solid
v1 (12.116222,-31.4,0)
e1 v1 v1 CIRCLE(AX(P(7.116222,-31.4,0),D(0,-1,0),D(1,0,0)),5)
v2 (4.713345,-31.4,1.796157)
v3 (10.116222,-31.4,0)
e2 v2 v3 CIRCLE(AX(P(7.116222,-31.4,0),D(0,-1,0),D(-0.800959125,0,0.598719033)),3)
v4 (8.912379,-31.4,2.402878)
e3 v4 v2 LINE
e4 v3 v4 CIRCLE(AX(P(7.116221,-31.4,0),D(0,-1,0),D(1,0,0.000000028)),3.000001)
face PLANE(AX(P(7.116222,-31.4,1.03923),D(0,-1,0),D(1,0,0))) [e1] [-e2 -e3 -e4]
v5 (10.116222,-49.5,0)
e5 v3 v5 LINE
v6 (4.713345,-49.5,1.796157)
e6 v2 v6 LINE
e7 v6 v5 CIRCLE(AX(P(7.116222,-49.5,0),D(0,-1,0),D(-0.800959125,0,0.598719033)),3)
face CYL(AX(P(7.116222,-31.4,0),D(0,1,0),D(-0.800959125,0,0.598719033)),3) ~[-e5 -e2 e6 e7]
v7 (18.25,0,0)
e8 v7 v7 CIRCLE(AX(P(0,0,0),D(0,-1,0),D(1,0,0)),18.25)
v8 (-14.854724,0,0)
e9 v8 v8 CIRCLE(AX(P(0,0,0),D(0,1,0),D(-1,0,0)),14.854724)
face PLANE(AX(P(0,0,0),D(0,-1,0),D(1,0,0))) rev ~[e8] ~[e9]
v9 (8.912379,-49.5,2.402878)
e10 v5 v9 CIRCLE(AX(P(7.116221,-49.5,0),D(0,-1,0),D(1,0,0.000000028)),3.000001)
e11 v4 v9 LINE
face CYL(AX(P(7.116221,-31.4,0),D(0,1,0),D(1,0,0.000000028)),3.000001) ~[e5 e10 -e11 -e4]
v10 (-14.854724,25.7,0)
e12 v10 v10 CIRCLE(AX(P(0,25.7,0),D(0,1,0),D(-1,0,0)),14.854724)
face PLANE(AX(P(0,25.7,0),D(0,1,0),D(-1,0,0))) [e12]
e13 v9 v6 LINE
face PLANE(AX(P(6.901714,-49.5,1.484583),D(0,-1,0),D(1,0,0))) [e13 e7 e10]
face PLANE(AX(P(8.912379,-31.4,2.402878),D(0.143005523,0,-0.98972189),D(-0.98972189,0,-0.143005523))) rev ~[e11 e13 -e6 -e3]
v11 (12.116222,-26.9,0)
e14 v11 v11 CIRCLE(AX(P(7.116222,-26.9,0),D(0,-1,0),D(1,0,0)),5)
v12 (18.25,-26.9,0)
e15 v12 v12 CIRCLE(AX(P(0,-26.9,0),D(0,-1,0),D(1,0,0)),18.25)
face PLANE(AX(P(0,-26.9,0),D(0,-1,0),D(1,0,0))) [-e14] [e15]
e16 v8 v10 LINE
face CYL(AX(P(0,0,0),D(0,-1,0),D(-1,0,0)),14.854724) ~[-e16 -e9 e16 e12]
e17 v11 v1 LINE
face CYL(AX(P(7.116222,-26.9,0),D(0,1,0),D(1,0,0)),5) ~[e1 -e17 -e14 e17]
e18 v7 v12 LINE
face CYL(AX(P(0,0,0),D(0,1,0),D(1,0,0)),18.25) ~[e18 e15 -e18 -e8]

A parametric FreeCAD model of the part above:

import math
import FreeCAD as App
import Part
import Sketcher
Q = App.Units.Quantity

doc = App.newDocument("Part")
params = doc.addObject("Spreadsheet::Sheet", "Params")
for row, (alias, value) in enumerate([
    ("sketch1_diameter", "36.5 mm"),
    ("pad1_length", "26.9 mm"),
    ("sketch2_diameter", "10 mm"),
    ("pad2_length", "4.5 mm"),
    ("sketch3_radius", "3 mm"),
    ("pad3_length", "18.1 mm"),
    ("pad4_length", "25.7 mm"),
], start=1):
    params.set(f"A{row}", alias)
    params.set(f"B{row}", "=" + value)
    params.setAlias(f"B{row}", alias)

body = doc.addObject("PartDesign::Body", "Body")

# Sketch on XZ plane
sketch1 = body.newObject("Sketcher::SketchObject", "Sketch")
sketch1.AttachmentSupport = (doc.getObject("XZ_Plane"), [""])
sketch1.MapMode = "FlatFace"
sketch1.addGeometry(Part.Circle(App.Vector(0, 0, 0), App.Vector(0, 0, 1), 18), False)
sketch1.addConstraint([
    Sketcher.Constraint("Coincident", 0, 3, -1, 1),
    Sketcher.Constraint("Diameter", 0, Q("36.5 mm")),
])
sketch1.setExpression("Constraints[1]", "Params.sketch1_diameter")
pad1 = body.newObject("PartDesign::Pad", "Pad")
pad1.Profile = sketch1
pad1.setExpression("Length", "Params.pad1_length")

# Sketch on XZ plane
sketch2 = body.newObject("Sketcher::SketchObject", "Sketch001")
sketch2.AttachmentSupport = (doc.getObject("XZ_Plane"), [""])
sketch2.MapMode = "FlatFace"
sketch2.AttachmentOffset = App.Placement(App.Vector(0, 0, 26.9), App.Rotation())
sketch2.addGeometry(Part.Circle(App.Vector(7, 0, 0), App.Vector(0, 0, 1), 5), False)
sketch2.addConstraint([
    Sketcher.Constraint("PointOnObject", 0, 3, -1),
    Sketcher.Constraint("Diameter", 0, Q("10 mm")),
    Sketcher.Constraint("DistanceX", -1, 1, 0, 3, Q("7.116222 mm")),
])
sketch2.setExpression("Constraints[1]", "Params.sketch2_diameter")
pad2 = body.newObject("PartDesign::Pad", "Pad001")
pad2.Profile = sketch2
pad2.setExpression("Length", "Params.pad2_length")

# Sketch on XZ plane
sketch3 = body.newObject("Sketcher::SketchObject", "Sketch002")
sketch3.AttachmentSupport = (doc.getObject("XZ_Plane"), [""])
sketch3.MapMode = "FlatFace"
sketch3.AttachmentOffset = App.Placement(App.Vector(0, 0, 31.4), App.Rotation())
sketch3.addGeometry([
    Part.LineSegment(App.Vector(8.9, 2.4, 0), App.Vector(4.7, 1.8, 0)),
    Part.ArcOfCircle(Part.Circle(App.Vector(7.1, 0, 0), App.Vector(0, 0, 1), 3), math.radians(143), math.radians(360)),
    Part.ArcOfCircle(Part.Circle(App.Vector(7.1, 0, 0), App.Vector(0, 0, 1), 3), math.radians(0), math.radians(53)),
], False)
sketch3.addConstraint([
    Sketcher.Constraint("Coincident", 0, 2, 1, 1),
    Sketcher.Constraint("Tangent", 1, 2, 2, 1),
    Sketcher.Constraint("Coincident", 2, 2, 0, 1),
    Sketcher.Constraint("Equal", 1, 2),
    Sketcher.Constraint("PointOnObject", 1, 3, -1),
    Sketcher.Constraint("PointOnObject", 1, 2, -1),
    Sketcher.Constraint("Radius", 1, Q("3 mm")),
    Sketcher.Constraint("Distance", 0, Q("4.24264 mm")),
    Sketcher.Constraint("DistanceX", -1, 1, 2, 3, Q("7.116221 mm")),
    Sketcher.Constraint("DistanceX", -1, 1, 2, 2, Q("8.912379 mm")),
])
sketch3.setExpression("Constraints[6]", "Params.sketch3_radius")
pad3 = body.newObject("PartDesign::Pad", "Pad002")
pad3.Profile = sketch3
pad3.setExpression("Length", "Params.pad3_length")

# Sketch on XZ plane
sketch4 = body.newObject("Sketcher::SketchObject", "Sketch003")
sketch4.AttachmentSupport = (doc.getObject("XZ_Plane"), [""])
sketch4.MapMode = "FlatFace"
sketch4.addGeometry(Part.Circle(App.Vector(0, 0, 0), App.Vector(0, 0, 1), 15), False)
sketch4.addConstraint([
    Sketcher.Constraint("Coincident", 0, 3, -1, 1),
    Sketcher.Constraint("Diameter", 0, Q("29.709448 mm")),
])
pad4 = body.newObject("PartDesign::Pad", "Pad003")
pad4.Profile = sketch4
pad4.setExpression("Length", "Params.pad4_length")
pad4.Reversed = True

doc.recompute()
